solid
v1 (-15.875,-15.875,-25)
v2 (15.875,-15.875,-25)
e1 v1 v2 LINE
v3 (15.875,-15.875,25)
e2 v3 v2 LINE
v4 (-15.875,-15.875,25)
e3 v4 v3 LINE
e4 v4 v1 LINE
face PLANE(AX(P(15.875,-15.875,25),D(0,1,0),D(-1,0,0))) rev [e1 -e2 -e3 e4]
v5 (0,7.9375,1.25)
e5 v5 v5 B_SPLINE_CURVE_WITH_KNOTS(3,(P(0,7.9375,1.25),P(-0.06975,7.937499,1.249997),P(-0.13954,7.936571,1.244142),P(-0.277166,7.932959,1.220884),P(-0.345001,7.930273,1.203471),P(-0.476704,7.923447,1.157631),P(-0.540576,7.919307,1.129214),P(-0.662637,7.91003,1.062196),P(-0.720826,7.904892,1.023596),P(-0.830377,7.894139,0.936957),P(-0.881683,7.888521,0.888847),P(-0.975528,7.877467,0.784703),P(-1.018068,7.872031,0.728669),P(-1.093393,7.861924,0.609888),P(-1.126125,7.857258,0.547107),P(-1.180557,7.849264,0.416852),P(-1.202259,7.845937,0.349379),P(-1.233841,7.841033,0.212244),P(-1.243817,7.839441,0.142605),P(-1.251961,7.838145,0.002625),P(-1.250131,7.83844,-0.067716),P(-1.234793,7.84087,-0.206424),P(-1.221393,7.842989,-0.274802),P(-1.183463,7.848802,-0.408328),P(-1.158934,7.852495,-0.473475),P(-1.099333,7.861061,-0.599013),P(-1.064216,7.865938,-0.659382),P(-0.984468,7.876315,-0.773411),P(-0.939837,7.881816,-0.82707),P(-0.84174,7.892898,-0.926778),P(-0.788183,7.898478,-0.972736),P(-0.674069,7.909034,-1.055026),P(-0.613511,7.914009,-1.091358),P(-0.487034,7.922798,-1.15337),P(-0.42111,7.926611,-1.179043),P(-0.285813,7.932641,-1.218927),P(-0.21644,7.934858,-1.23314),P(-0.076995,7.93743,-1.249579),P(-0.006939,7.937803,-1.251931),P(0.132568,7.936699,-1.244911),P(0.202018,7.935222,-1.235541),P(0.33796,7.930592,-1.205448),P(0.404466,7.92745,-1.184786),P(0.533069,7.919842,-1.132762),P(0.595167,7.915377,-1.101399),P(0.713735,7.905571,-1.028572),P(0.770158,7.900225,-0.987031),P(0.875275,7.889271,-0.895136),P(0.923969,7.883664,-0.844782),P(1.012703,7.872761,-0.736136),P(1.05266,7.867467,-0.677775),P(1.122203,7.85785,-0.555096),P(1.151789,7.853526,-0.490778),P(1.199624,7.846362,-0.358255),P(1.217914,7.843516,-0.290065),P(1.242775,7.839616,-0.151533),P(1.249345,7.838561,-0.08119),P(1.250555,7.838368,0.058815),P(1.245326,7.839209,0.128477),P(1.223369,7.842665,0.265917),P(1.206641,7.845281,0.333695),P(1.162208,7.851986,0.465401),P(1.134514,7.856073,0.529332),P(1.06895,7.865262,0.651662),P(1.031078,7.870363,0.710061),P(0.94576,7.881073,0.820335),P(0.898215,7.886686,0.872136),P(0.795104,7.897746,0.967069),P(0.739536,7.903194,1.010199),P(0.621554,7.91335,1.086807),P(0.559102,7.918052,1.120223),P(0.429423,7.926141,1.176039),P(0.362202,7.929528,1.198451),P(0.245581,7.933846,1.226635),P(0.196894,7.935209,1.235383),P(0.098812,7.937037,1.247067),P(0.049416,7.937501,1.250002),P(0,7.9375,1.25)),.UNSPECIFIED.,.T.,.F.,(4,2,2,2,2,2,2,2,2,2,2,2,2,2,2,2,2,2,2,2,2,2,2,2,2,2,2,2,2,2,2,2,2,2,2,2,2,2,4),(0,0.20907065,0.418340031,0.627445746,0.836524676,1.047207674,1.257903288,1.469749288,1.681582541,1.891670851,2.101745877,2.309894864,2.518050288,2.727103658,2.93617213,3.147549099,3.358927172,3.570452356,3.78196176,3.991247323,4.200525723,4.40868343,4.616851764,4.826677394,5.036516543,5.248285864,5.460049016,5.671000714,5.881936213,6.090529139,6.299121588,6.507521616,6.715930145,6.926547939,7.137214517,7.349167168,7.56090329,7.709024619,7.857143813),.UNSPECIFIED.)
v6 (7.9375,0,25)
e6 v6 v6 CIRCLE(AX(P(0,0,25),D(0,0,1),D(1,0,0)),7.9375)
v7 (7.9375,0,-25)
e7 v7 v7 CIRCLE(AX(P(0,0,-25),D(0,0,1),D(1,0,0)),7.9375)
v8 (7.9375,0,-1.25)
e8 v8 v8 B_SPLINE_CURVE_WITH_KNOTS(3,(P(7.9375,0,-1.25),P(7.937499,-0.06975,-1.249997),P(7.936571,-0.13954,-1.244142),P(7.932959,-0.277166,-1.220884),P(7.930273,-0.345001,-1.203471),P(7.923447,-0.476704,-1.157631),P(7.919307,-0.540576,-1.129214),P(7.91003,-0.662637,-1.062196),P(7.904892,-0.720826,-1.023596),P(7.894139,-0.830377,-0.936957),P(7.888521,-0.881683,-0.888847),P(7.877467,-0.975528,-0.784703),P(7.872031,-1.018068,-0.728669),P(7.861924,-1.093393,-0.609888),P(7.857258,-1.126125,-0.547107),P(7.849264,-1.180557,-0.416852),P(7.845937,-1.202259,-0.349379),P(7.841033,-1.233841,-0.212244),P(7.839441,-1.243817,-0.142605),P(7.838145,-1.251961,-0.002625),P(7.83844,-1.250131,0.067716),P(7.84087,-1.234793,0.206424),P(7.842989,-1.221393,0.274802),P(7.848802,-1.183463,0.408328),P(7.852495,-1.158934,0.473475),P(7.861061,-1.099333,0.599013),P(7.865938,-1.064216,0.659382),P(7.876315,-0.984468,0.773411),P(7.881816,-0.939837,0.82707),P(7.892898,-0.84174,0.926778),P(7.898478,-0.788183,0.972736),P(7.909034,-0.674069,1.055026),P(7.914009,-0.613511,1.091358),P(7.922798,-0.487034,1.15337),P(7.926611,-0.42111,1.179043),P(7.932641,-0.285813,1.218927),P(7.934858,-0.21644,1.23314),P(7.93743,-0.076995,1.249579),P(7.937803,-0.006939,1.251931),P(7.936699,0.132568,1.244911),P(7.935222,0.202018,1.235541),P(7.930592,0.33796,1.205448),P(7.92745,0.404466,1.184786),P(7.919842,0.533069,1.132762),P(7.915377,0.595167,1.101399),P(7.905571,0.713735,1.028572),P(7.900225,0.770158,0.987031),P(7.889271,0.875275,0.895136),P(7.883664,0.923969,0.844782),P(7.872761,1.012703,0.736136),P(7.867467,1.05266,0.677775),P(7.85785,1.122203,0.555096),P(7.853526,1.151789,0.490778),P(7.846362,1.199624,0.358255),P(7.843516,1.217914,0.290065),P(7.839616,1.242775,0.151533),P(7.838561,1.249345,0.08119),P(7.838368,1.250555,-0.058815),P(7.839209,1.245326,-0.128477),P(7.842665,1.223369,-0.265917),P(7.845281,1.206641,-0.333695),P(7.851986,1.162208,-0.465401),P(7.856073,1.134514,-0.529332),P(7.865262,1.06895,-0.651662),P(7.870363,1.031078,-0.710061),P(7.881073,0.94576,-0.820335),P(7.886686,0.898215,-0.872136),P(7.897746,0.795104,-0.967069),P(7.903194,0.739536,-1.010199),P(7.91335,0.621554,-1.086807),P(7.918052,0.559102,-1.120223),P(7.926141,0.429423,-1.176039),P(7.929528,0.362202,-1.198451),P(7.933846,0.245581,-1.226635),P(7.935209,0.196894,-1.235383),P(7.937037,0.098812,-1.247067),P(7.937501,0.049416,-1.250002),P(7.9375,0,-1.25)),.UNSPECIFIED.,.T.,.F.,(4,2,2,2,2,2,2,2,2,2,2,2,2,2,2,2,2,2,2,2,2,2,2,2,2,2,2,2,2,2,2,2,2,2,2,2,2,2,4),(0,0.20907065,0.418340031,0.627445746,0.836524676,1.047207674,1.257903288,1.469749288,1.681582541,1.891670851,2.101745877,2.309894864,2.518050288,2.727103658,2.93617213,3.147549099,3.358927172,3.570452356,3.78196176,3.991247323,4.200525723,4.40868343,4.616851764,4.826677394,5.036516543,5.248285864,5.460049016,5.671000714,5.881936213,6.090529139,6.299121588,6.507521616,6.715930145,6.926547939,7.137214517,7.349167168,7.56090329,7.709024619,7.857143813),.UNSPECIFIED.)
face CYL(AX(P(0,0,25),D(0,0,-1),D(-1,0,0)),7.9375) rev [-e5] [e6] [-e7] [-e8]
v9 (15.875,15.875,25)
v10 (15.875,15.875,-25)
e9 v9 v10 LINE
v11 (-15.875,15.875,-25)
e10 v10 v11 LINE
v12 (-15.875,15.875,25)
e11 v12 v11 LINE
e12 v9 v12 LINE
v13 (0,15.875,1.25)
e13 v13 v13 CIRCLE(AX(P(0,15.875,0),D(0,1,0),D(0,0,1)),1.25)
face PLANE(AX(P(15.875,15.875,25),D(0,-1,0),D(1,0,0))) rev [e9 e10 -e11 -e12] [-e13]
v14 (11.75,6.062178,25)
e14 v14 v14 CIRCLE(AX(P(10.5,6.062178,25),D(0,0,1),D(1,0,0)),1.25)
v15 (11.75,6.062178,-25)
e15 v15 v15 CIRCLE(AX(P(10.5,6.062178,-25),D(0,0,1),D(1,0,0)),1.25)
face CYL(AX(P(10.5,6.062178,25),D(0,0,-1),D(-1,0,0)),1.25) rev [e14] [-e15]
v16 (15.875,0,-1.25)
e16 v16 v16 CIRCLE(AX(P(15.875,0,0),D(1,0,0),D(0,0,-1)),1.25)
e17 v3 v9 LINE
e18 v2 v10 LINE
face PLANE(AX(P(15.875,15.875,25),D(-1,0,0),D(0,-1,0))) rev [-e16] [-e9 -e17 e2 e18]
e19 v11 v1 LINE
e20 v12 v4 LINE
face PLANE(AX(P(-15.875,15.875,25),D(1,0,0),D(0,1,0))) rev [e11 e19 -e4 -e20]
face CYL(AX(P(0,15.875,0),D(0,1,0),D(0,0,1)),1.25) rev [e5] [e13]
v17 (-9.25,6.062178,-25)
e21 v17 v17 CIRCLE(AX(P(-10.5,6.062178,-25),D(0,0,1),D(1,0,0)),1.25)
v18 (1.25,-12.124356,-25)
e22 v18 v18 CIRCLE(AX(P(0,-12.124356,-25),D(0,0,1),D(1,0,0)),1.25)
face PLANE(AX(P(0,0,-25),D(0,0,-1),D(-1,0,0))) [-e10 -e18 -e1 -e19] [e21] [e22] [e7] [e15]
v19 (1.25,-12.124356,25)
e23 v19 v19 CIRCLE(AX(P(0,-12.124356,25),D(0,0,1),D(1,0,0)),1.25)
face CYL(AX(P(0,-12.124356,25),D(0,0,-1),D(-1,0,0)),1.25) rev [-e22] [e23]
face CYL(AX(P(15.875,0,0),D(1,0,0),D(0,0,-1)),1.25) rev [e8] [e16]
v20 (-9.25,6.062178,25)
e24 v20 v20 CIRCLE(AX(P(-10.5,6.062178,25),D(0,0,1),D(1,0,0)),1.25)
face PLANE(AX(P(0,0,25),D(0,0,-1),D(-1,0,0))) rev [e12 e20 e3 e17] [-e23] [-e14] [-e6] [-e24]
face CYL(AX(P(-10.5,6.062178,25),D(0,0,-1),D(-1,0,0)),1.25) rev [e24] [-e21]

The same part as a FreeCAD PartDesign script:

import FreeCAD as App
import Part
import Sketcher
Q = App.Units.Quantity

doc = App.newDocument("Part")
body = doc.addObject("PartDesign::Body", "Body")

sketch1 = body.newObject("Sketcher::SketchObject", "Sketch")
sketch1.AttachmentSupport = (doc.getObject("XY_Plane"), [""])
sketch1.MapMode = "FlatFace"
sketch1.addGeometry([
    Part.LineSegment(App.Vector(-15.9, 15.9, 0), App.Vector(-15.9, -15.9, 0)),
    Part.LineSegment(App.Vector(-15.9, -15.9, 0), App.Vector(15.9, -15.9, 0)),
    Part.LineSegment(App.Vector(15.9, -15.9, 0), App.Vector(15.9, 15.9, 0)),
    Part.LineSegment(App.Vector(15.9, 15.9, 0), App.Vector(-15.9, 15.9, 0)),
    Part.Circle(App.Vector(0, -12.1, 0), App.Vector(0, 0, 1), 1.2),
    Part.Circle(App.Vector(-10.5, 6.1, 0), App.Vector(0, 0, 1), 1.2),
    Part.Circle(App.Vector(0, 0, 0), App.Vector(0, 0, 1), 7.9),
    Part.Circle(App.Vector(10.5, 6.1, 0), App.Vector(0, 0, 1), 1.2),
], False)
sketch1.addConstraint([
    Sketcher.Constraint("Coincident", 0, 2, 1, 1),
    Sketcher.Constraint("Coincident", 1, 2, 2, 1),
    Sketcher.Constraint("Coincident", 2, 2, 3, 1),
    Sketcher.Constraint("Coincident", 3, 2, 0, 1),
    Sketcher.Constraint("Vertical", 0),
    Sketcher.Constraint("Horizontal", 1),
    Sketcher.Constraint("Vertical", 2),
    Sketcher.Constraint("Horizontal", 3),
    Sketcher.Constraint("Coincident", 6, 3, -1, 1),
    Sketcher.Constraint("Equal", 4, 5),
    Sketcher.Constraint("Equal", 5, 7),
    Sketcher.Constraint("Symmetric", 0, 2, 2, 2, -1, 1),
    Sketcher.Constraint("Symmetric", 5, 3, 7, 3, -2),
    Sketcher.Constraint("PointOnObject", 4, 3, -2),
    Sketcher.Constraint("Equal", 3, 0),
    Sketcher.Constraint("Diameter", 6, Q("0.625 in")),
    Sketcher.Constraint("DistanceX", 1, 1, 1, 2, Q("1.25 in")),
    Sketcher.Constraint("Diameter", 4, 2.5),
    Sketcher.Constraint("DistanceX", 5, 3, -1, 1, 10.5),
    Sketcher.Constraint("DistanceY", 4, 3, -1, 1, 12.124356),
    Sketcher.Constraint("DistanceY", -1, 1, 5, 3, 6.062178),
])
pad1 = body.newObject("PartDesign::Pad", "Pad")
pad1.Profile = sketch1
pad1.Length = 50
pad1.Midplane = True

sketch2 = body.newObject("Sketcher::SketchObject", "Sketch001")
sketch2.AttachmentSupport = (doc.getObject("XZ_Plane"), [""])
sketch2.MapMode = "FlatFace"
sketch2.AttachmentOffset = App.Placement(App.Vector(0, 0, -0.625 * 25.4), App.Rotation())
sketch2.addGeometry(Part.Circle(App.Vector(0, 0, 0), App.Vector(0, 0, 1), 1.2), False)
sketch2.addConstraint([
    Sketcher.Constraint("Coincident", 0, 3, -1, 1),
    Sketcher.Constraint("Diameter", 0, 2.5),
])
pocket1 = body.newObject("PartDesign::Pocket", "Pocket")
pocket1.Profile = sketch2
pocket1.Type = "UpToFirst"
pocket1.Reversed = True

sketch3 = body.newObject("Sketcher::SketchObject", "Sketch002")
sketch3.AttachmentSupport = (doc.getObject("YZ_Plane"), [""])
sketch3.MapMode = "FlatFace"
sketch3.AttachmentOffset = App.Placement(App.Vector(0, 0, 0.625 * 25.4), App.Rotation())
sketch3.addGeometry(Part.Circle(App.Vector(0, 0, 0), App.Vector(0, 0, 1), 1.2), False)
sketch3.addConstraint([
    Sketcher.Constraint("Coincident", 0, 3, -1, 1),
    Sketcher.Constraint("Diameter", 0, 2.5),
])
pocket2 = body.newObject("PartDesign::Pocket", "Pocket001")
pocket2.Profile = sketch3
pocket2.Type = "UpToFirst"

doc.recompute()
